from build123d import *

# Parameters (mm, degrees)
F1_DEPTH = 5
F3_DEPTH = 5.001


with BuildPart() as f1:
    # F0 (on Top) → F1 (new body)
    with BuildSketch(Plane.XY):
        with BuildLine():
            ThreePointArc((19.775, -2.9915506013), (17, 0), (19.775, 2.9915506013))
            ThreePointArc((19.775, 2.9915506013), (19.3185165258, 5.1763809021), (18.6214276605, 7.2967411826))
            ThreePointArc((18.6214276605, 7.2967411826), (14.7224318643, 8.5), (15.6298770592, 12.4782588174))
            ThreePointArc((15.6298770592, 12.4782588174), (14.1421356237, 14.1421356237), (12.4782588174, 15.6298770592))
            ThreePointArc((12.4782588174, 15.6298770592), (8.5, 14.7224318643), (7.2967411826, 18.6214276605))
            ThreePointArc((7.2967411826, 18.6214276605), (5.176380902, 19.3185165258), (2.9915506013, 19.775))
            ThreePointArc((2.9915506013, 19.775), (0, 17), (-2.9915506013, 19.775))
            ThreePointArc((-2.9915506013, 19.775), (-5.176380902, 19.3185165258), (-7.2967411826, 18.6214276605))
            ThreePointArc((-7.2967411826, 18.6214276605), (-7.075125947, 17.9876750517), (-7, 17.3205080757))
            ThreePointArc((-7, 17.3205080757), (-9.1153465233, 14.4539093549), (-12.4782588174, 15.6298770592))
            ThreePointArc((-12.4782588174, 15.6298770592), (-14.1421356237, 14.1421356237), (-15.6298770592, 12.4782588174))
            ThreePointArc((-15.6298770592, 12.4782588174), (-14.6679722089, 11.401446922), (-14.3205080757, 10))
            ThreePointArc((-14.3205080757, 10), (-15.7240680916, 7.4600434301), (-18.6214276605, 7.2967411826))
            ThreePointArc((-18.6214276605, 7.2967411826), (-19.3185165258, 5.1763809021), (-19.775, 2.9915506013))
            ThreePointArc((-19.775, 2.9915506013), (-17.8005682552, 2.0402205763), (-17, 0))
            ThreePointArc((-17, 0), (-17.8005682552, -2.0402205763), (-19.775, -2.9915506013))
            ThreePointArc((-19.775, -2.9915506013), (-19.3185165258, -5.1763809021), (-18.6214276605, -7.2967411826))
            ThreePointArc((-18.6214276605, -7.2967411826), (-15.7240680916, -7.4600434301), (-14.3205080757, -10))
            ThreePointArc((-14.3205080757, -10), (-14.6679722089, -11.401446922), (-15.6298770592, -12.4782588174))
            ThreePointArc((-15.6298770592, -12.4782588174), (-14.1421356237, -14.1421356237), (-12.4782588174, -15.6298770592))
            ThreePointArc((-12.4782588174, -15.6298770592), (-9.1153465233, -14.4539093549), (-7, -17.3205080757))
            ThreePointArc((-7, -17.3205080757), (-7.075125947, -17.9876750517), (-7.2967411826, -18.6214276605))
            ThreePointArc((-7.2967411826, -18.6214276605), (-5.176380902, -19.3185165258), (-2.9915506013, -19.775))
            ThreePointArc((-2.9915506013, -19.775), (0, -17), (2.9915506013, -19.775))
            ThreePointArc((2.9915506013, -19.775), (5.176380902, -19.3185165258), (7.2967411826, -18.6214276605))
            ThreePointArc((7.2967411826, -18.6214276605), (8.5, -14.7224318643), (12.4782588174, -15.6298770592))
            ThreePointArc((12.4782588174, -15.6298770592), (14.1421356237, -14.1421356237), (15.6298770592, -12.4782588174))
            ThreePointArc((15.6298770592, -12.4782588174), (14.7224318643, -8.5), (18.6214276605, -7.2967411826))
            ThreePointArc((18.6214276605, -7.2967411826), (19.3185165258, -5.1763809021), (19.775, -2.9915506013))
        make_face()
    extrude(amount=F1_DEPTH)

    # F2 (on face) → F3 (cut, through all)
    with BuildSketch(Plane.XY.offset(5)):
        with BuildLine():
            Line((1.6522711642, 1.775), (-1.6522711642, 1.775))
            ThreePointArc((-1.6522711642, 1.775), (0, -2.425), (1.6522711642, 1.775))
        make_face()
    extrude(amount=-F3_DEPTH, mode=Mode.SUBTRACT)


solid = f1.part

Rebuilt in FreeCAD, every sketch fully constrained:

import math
import FreeCAD as App
import Part
import Sketcher
Q = App.Units.Quantity

doc = App.newDocument("Part")
body = doc.addObject("PartDesign::Body", "Body")

sketch1 = body.newObject("Sketcher::SketchObject", "Sketch")
sketch1.AttachmentSupport = (doc.getObject("XY_Plane"), [""])
sketch1.MapMode = "FlatFace"
sketch1.addGeometry([
    Part.ArcOfCircle(Part.Circle(App.Vector(20, 0, 0), App.Vector(0, 0, 1), 3), math.radians(94), math.radians(266)),
    Part.ArcOfCircle(Part.Circle(App.Vector(0, 0, 0), App.Vector(0, 0, 1), 20), math.radians(8.6), math.radians(21.4)),
    Part.ArcOfCircle(Part.Circle(App.Vector(17.3, 10, 0), App.Vector(0, 0, 1), 3), math.radians(124), math.radians(296)),
    Part.ArcOfCircle(Part.Circle(App.Vector(0, 0, 0), App.Vector(0, 0, 1), 20), math.radians(38.6), math.radians(51.4)),
    Part.ArcOfCircle(Part.Circle(App.Vector(10, 17.3, 0), App.Vector(0, 0, 1), 3), math.radians(154), math.radians(326)),
    Part.ArcOfCircle(Part.Circle(App.Vector(0, 0, 0), App.Vector(0, 0, 1), 20), math.radians(68.6), math.radians(81.4)),
    Part.ArcOfCircle(Part.Circle(App.Vector(0, 20, 0), App.Vector(0, 0, 1), 3), math.radians(-176), math.radians(-4)),
    Part.ArcOfCircle(Part.Circle(App.Vector(0, 0, 0), App.Vector(0, 0, 1), 20), math.radians(98.6), math.radians(111.4)),
    Part.ArcOfCircle(Part.Circle(App.Vector(-10, 17.3, 0), App.Vector(0, 0, 1), 3), math.radians(0), math.radians(26)),
    Part.ArcOfCircle(Part.Circle(App.Vector(-10, 17.3, 0), App.Vector(0, 0, 1), 3), math.radians(-146), math.radians(0)),
    Part.ArcOfCircle(Part.Circle(App.Vector(0, 0, 0), App.Vector(0, 0, 1), 20), math.radians(128.6), math.radians(141.4)),
    Part.ArcOfCircle(Part.Circle(App.Vector(-17.3, 10, 0), App.Vector(0, 0, 1), 3), math.radians(0), math.radians(56)),
    Part.ArcOfCircle(Part.Circle(App.Vector(-17.3, 10, 0), App.Vector(0, 0, 1), 3), math.radians(-116), math.radians(0)),
    Part.ArcOfCircle(Part.Circle(App.Vector(0, 0, 0), App.Vector(0, 0, 1), 20), math.radians(158.6), math.radians(171.4)),
    Part.ArcOfCircle(Part.Circle(App.Vector(-20, 0, 0), App.Vector(0, 0, 1), 3), math.radians(0), math.radians(86)),
    Part.ArcOfCircle(Part.Circle(App.Vector(-20, 0, 0), App.Vector(0, 0, 1), 3), math.radians(-86), math.radians(0)),
    Part.ArcOfCircle(Part.Circle(App.Vector(0, 0, 0), App.Vector(0, 0, 1), 20), math.radians(-171.4), math.radians(-158.6)),
    Part.ArcOfCircle(Part.Circle(App.Vector(-17.3, -10, 0), App.Vector(0, 0, 1), 3), math.radians(0), math.radians(116)),
    Part.ArcOfCircle(Part.Circle(App.Vector(-17.3, -10, 0), App.Vector(0, 0, 1), 3), math.radians(-56), math.radians(0)),
    Part.ArcOfCircle(Part.Circle(App.Vector(0, 0, 0), App.Vector(0, 0, 1), 20), math.radians(-141.4), math.radians(-128.6)),
    Part.ArcOfCircle(Part.Circle(App.Vector(-10, -17.3, 0), App.Vector(0, 0, 1), 3), math.radians(0), math.radians(146)),
    Part.ArcOfCircle(Part.Circle(App.Vector(-10, -17.3, 0), App.Vector(0, 0, 1), 3), math.radians(-26), math.radians(0)),
    Part.ArcOfCircle(Part.Circle(App.Vector(0, 0, 0), App.Vector(0, 0, 1), 20), math.radians(-111.4), math.radians(-98.6)),
    Part.ArcOfCircle(Part.Circle(App.Vector(0, -20, 0), App.Vector(0, 0, 1), 3), math.radians(4), math.radians(176)),
    Part.ArcOfCircle(Part.Circle(App.Vector(0, 0, 0), App.Vector(0, 0, 1), 20), math.radians(-81.4), math.radians(-68.6)),
    Part.ArcOfCircle(Part.Circle(App.Vector(10, -17.3, 0), App.Vector(0, 0, 1), 3), math.radians(34), math.radians(206)),
    Part.ArcOfCircle(Part.Circle(App.Vector(0, 0, 0), App.Vector(0, 0, 1), 20), math.radians(-51.4), math.radians(-38.6)),
    Part.ArcOfCircle(Part.Circle(App.Vector(17.3, -10, 0), App.Vector(0, 0, 1), 3), math.radians(64), math.radians(236)),
    Part.ArcOfCircle(Part.Circle(App.Vector(0, 0, 0), App.Vector(0, 0, 1), 20), math.radians(-21.4), math.radians(-8.6)),
], False)
sketch1.addConstraint([
    Sketcher.Constraint("Coincident", 0, 1, 1, 1),
    Sketcher.Constraint("Coincident", 1, 2, 2, 2),
    Sketcher.Constraint("Coincident", 2, 1, 3, 1),
    Sketcher.Constraint("Coincident", 3, 2, 4, 2),
    Sketcher.Constraint("Coincident", 4, 1, 5, 1),
    Sketcher.Constraint("Coincident", 5, 2, 6, 2),
    Sketcher.Constraint("Coincident", 6, 1, 7, 1),
    Sketcher.Constraint("Coincident", 7, 2, 8, 2),
    Sketcher.Constraint("Tangent", 8, 1, 9, 2),
    Sketcher.Constraint("Coincident", 9, 1, 10, 1),
    Sketcher.Constraint("Coincident", 10, 2, 11, 2),
    Sketcher.Constraint("Tangent", 11, 1, 12, 2),
    Sketcher.Constraint("Coincident", 12, 1, 13, 1),
    Sketcher.Constraint("Coincident", 13, 2, 14, 2),
    Sketcher.Constraint("Tangent", 14, 1, 15, 2),
    Sketcher.Constraint("Coincident", 15, 1, 16, 1),
    Sketcher.Constraint("Coincident", 16, 2, 17, 2),
    Sketcher.Constraint("Tangent", 17, 1, 18, 2),
    Sketcher.Constraint("Coincident", 18, 1, 19, 1),
    Sketcher.Constraint("Coincident", 19, 2, 20, 2),
    Sketcher.Constraint("Tangent", 20, 1, 21, 2),
    Sketcher.Constraint("Coincident", 21, 1, 22, 1),
    Sketcher.Constraint("Coincident", 22, 2, 23, 2),
    Sketcher.Constraint("Coincident", 23, 1, 24, 1),
    Sketcher.Constraint("Coincident", 24, 2, 25, 2),
    Sketcher.Constraint("Coincident", 25, 1, 26, 1),
    Sketcher.Constraint("Coincident", 26, 2, 27, 2),
    Sketcher.Constraint("Coincident", 27, 1, 28, 1),
    Sketcher.Constraint("Coincident", 28, 2, 0, 2),
    Sketcher.Constraint("Coincident", 1, 3, -1, 1),
    Sketcher.Constraint("Coincident", 3, 3, -1, 1),
    Sketcher.Constraint("Coincident", 5, 3, -1, 1),
    Sketcher.Constraint("Coincident", 7, 3, -1, 1),
    Sketcher.Constraint("Coincident", 10, 3, -1, 1),
    Sketcher.Constraint("Coincident", 13, 3, -1, 1),
    Sketcher.Constraint("Coincident", 16, 3, -1, 1),
    Sketcher.Constraint("Coincident", 19, 3, -1, 1),
    Sketcher.Constraint("Coincident", 22, 3, -1, 1),
    Sketcher.Constraint("Coincident", 24, 3, -1, 1),
    Sketcher.Constraint("Coincident", 26, 3, -1, 1),
    Sketcher.Constraint("Coincident", 28, 3, -1, 1),
    Sketcher.Constraint("Equal", 0, 2),
    Sketcher.Constraint("Equal", 1, 3),
    Sketcher.Constraint("Equal", 2, 4),
    Sketcher.Constraint("Equal", 3, 5),
    Sketcher.Constraint("Equal", 4, 6),
    Sketcher.Constraint("Equal", 5, 7),
    Sketcher.Constraint("Equal", 6, 8),
    Sketcher.Constraint("Equal", 8, 9),
    Sketcher.Constraint("Equal", 7, 10),
    Sketcher.Constraint("Equal", 9, 11),
    Sketcher.Constraint("Equal", 11, 12),
    Sketcher.Constraint("Equal", 10, 13),
    Sketcher.Constraint("Equal", 12, 14),
    Sketcher.Constraint("Equal", 14, 15),
    Sketcher.Constraint("Equal", 13, 16),
    Sketcher.Constraint("Equal", 15, 17),
    Sketcher.Constraint("Equal", 17, 18),
    Sketcher.Constraint("Equal", 16, 19),
    Sketcher.Constraint("Equal", 18, 20),
    Sketcher.Constraint("Equal", 20, 21),
    Sketcher.Constraint("Equal", 19, 22),
    Sketcher.Constraint("Equal", 21, 23),
    Sketcher.Constraint("Equal", 22, 24),
    Sketcher.Constraint("Equal", 23, 25),
    Sketcher.Constraint("Equal", 24, 26),
    Sketcher.Constraint("Equal", 25, 27),
    Sketcher.Constraint("Equal", 26, 28),
    Sketcher.Constraint("Symmetric", 0, 3, 14, 3, -1, 1),
    Sketcher.Constraint("Symmetric", 2, 3, 17, 3, -1, 1),
    Sketcher.Constraint("Symmetric", 4, 3, 20, 3, -1, 1),
    Sketcher.Constraint("Symmetric", 6, 3, 23, 3, -1, 1),
    Sketcher.Constraint("Symmetric", 8, 3, 25, 3, -1, 1),
    Sketcher.Constraint("Symmetric", 11, 3, 27, 3, -1, 1),
    Sketcher.Constraint("Symmetric", 4, 3, 8, 3, -2),
    Sketcher.Constraint("Symmetric", 2, 3, 11, 3, -2),
    Sketcher.Constraint("PointOnObject", 0, 3, -1),
    Sketcher.Constraint("PointOnObject", 6, 3, -2),
    Sketcher.Constraint("PointOnObject", 14, 1, -1),
    Sketcher.Constraint("Horizontal", 9, 3, 8, 1),
    Sketcher.Constraint("Horizontal", 12, 3, 11, 1),
    Sketcher.Constraint("Horizontal", 27, 3, 17, 1),
    Sketcher.Constraint("Horizontal", 25, 3, 20, 1),
    Sketcher.Constraint("Radius", 0, Q("3 mm")),
    Sketcher.Constraint("Radius", 1, Q("20 mm")),
    Sketcher.Constraint("DistanceX", -1, 1, 0, 3, Q("20 mm")),
    Sketcher.Constraint("DistanceY", -1, 1, 2, 3, Q("10 mm")),
    Sketcher.Constraint("DistanceX", -1, 1, 4, 3, Q("10 mm")),
    Sketcher.Constraint("DistanceY", -1, 1, 6, 3, Q("20 mm")),
    Sketcher.Constraint("DistanceX", -1, 1, 2, 3, Q("17.320508 mm")),
    Sketcher.Constraint("DistanceY", -1, 1, 4, 3, Q("17.320508 mm")),
])
pad1 = body.newObject("PartDesign::Pad", "Pad")
pad1.Profile = sketch1
pad1.Length = 5

sketch2 = body.newObject("Sketcher::SketchObject", "Sketch001")
sketch2.AttachmentSupport = (doc.getObject("XY_Plane"), [""])
sketch2.MapMode = "FlatFace"
sketch2.AttachmentOffset = App.Placement(App.Vector(0, 0, 5), App.Rotation())
sketch2.addGeometry([
    Part.LineSegment(App.Vector(1.7, 1.8, 0), App.Vector(-1.7, 1.8, 0)),
    Part.ArcOfCircle(Part.Circle(App.Vector(0, 0, 0), App.Vector(0, 0, 1), 2.4), math.radians(133), math.radians(407)),
], False)
sketch2.addConstraint([
    Sketcher.Constraint("Coincident", 0, 1, 1, 2),
    Sketcher.Constraint("Coincident", 1, 1, 0, 2),
    Sketcher.Constraint("Horizontal", 0),
    Sketcher.Constraint("Coincident", 1, 3, -1, 1),
    Sketcher.Constraint("Radius", 1, Q("2.425 mm")),
    Sketcher.Constraint("DistanceY", -1, 1, 0, 1, Q("1.775 mm")),
])
pocket1 = body.newObject("PartDesign::Pocket", "Pocket")
pocket1.Profile = sketch2
pocket1.Type = "ThroughAll"

doc.recompute()
